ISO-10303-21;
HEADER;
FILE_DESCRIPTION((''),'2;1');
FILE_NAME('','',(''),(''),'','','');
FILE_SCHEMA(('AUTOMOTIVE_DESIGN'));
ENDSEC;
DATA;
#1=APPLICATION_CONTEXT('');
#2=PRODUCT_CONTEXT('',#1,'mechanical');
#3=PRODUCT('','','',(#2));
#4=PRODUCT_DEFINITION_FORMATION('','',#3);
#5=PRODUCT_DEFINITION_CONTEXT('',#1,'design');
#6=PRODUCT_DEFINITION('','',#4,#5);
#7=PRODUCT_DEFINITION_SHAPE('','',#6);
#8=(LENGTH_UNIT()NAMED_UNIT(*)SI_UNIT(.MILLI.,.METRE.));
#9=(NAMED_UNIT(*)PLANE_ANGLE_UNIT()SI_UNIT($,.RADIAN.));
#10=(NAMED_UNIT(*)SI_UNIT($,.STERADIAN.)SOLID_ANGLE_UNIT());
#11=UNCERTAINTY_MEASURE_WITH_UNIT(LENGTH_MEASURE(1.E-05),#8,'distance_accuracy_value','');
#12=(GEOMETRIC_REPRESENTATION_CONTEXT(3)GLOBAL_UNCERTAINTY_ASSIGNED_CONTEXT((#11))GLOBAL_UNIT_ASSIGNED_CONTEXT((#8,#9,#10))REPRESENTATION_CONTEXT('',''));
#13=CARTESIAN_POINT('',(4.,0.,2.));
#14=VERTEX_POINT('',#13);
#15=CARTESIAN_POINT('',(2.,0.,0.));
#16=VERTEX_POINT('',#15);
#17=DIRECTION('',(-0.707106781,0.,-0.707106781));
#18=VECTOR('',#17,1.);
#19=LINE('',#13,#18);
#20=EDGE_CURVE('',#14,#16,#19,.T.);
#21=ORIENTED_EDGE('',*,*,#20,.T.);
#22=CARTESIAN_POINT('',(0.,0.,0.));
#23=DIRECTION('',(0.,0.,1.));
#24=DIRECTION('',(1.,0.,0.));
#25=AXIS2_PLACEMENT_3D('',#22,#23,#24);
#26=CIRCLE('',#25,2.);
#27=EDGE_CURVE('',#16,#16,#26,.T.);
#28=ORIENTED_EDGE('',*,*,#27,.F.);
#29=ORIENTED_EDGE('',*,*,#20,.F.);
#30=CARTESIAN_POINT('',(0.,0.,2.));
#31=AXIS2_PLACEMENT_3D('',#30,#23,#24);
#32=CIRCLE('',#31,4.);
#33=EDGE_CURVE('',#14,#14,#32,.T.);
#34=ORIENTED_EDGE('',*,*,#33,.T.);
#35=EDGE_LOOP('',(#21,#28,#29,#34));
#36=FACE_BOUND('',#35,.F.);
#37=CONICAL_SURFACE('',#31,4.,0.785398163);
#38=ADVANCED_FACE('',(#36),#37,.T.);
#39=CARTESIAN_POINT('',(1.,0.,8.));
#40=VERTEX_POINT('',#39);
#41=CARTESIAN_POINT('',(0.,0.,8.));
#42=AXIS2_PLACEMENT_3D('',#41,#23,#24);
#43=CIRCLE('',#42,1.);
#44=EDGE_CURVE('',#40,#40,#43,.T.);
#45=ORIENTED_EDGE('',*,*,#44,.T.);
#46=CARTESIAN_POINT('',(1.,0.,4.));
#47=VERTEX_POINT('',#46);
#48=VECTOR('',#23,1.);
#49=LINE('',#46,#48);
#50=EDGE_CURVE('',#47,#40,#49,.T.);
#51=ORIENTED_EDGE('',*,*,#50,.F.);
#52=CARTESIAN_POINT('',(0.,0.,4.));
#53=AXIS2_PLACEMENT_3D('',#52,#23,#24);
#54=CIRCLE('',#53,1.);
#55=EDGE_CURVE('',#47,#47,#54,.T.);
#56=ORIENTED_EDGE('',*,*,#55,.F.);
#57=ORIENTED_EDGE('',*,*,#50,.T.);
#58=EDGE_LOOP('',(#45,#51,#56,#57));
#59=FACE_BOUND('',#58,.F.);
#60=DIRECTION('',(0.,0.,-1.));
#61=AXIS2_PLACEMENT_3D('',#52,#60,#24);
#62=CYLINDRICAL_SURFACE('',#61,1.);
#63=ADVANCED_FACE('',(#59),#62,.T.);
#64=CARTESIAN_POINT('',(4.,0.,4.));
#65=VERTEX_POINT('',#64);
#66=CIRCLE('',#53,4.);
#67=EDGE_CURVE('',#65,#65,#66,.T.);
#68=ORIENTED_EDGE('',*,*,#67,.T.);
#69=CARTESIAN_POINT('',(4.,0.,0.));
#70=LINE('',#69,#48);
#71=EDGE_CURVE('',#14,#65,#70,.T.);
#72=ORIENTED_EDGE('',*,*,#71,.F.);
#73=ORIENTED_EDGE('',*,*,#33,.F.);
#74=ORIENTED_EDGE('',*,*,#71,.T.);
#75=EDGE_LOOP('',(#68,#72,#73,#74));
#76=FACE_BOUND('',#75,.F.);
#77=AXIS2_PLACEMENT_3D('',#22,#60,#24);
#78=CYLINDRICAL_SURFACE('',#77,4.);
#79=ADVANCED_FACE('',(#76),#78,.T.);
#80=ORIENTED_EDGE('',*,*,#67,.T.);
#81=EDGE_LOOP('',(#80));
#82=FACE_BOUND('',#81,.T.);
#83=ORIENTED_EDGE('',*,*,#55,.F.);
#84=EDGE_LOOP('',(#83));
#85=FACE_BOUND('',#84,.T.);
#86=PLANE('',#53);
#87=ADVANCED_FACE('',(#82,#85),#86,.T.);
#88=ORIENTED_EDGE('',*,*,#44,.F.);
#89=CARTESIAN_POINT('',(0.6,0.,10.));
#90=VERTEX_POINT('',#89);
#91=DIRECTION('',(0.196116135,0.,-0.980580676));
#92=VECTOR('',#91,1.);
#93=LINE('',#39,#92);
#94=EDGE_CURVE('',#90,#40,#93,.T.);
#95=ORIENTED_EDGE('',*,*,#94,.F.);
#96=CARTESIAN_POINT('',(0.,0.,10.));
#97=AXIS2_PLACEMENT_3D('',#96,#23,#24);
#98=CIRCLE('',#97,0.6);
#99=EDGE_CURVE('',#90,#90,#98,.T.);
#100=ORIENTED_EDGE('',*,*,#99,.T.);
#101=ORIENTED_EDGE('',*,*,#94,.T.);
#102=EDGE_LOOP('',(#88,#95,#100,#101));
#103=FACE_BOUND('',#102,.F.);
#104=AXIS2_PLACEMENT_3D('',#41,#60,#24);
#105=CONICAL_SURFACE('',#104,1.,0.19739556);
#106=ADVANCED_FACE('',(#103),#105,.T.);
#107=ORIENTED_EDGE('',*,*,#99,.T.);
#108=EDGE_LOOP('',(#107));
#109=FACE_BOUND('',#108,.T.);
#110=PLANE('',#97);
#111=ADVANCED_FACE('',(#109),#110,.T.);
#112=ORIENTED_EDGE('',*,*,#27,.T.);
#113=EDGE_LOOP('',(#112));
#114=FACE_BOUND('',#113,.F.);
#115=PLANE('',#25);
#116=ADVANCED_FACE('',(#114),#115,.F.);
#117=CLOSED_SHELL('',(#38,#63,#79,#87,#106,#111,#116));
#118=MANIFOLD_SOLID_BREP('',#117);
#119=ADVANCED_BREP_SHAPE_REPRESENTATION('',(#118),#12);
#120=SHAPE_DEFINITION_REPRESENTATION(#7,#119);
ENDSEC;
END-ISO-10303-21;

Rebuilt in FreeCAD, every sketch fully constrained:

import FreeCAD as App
import Part
import Sketcher

V = App.Vector


def edges_at(feature, points):
    """Names of the edges that pass closest to the given points."""
    edges = feature.Shape.Edges
    near = lambda p: min(range(len(edges)), key=lambda i: edges[i].distToShape(Part.Vertex(*p))[0])
    return sorted({f"Edge{near(p) + 1}" for p in points})

doc = App.newDocument("Part")
params = doc.addObject("Spreadsheet::Sheet", "Params")
for row, (alias, value) in enumerate([
    ("sketch1_diameter", "8 mm"),
    ("pad1_length", "4 mm"),
    ("sketch2_diameter", "2 mm"),
    ("pad2_length", "6 mm"),
    ("chamfer_size", "0.4 mm"),
    ("chamfer_size2", "2 mm"),
    ("chamfer2_size", "2 mm"),
    ("chamfer2_size2", "2 mm"),
], start=1):
    params.set(f"A{row}", alias)
    params.set(f"B{row}", "=" + value)
    params.setAlias(f"B{row}", alias)

body = doc.addObject("PartDesign::Body", "Body")

# Sketch on XY plane
sketch1 = doc.addObject("Sketcher::SketchObject", "Sketch")
body.addObject(sketch1)
sketch1.AttachmentSupport = (doc.XY_Plane, [""])
sketch1.MapMode = "FlatFace"
sketch1.addGeometry(Part.Circle(V(0, 0, 0), V(0, 0, 1), 4), False)
sketch1.addConstraint([
    Sketcher.Constraint("Coincident", 0, 3, -1, 1),
    Sketcher.Constraint("Diameter", 0, 8.0),
])
sketch1.setExpression("Constraints[1]", "Params.sketch1_diameter")
pad1 = doc.addObject("PartDesign::Pad", "Pad")
body.addObject(pad1)
pad1.Profile = sketch1
pad1.setExpression("Length", "Params.pad1_length")

# Sketch on XY plane
sketch2 = doc.addObject("Sketcher::SketchObject", "Sketch001")
body.addObject(sketch2)
sketch2.AttachmentSupport = (doc.XY_Plane, [""])
sketch2.MapMode = "FlatFace"
sketch2.AttachmentOffset = App.Placement(V(0, 0, 4), App.Rotation())
sketch2.addGeometry(Part.Circle(V(0, 0, 0), V(0, 0, 1), 1), False)
sketch2.addConstraint([
    Sketcher.Constraint("Coincident", 0, 3, -1, 1),
    Sketcher.Constraint("Diameter", 0, 2.0),
])
sketch2.setExpression("Constraints[1]", "Params.sketch2_diameter")
pad2 = doc.addObject("PartDesign::Pad", "Pad001")
body.addObject(pad2)
pad2.Profile = sketch2
pad2.setExpression("Length", "Params.pad2_length")
doc.recompute()

chamfer = doc.addObject("PartDesign::Chamfer", "Chamfer")
body.addObject(chamfer)
chamfer.Base = (pad2, edges_at(pad2, [(-1, 0, 10)]))
chamfer.ChamferType = "Two distances"
chamfer.setExpression("Size", "Params.chamfer_size")
chamfer.setExpression("Size2", "Params.chamfer_size2")
chamfer.FlipDirection = True
doc.recompute()

chamfer2 = doc.addObject("PartDesign::Chamfer", "Chamfer001")
body.addObject(chamfer2)
chamfer2.Base = (chamfer, edges_at(chamfer, [(-4, 0, 0)]))
chamfer2.ChamferType = "Two distances"
chamfer2.setExpression("Size", "Params.chamfer2_size")
chamfer2.setExpression("Size2", "Params.chamfer2_size2")

doc.recompute()
